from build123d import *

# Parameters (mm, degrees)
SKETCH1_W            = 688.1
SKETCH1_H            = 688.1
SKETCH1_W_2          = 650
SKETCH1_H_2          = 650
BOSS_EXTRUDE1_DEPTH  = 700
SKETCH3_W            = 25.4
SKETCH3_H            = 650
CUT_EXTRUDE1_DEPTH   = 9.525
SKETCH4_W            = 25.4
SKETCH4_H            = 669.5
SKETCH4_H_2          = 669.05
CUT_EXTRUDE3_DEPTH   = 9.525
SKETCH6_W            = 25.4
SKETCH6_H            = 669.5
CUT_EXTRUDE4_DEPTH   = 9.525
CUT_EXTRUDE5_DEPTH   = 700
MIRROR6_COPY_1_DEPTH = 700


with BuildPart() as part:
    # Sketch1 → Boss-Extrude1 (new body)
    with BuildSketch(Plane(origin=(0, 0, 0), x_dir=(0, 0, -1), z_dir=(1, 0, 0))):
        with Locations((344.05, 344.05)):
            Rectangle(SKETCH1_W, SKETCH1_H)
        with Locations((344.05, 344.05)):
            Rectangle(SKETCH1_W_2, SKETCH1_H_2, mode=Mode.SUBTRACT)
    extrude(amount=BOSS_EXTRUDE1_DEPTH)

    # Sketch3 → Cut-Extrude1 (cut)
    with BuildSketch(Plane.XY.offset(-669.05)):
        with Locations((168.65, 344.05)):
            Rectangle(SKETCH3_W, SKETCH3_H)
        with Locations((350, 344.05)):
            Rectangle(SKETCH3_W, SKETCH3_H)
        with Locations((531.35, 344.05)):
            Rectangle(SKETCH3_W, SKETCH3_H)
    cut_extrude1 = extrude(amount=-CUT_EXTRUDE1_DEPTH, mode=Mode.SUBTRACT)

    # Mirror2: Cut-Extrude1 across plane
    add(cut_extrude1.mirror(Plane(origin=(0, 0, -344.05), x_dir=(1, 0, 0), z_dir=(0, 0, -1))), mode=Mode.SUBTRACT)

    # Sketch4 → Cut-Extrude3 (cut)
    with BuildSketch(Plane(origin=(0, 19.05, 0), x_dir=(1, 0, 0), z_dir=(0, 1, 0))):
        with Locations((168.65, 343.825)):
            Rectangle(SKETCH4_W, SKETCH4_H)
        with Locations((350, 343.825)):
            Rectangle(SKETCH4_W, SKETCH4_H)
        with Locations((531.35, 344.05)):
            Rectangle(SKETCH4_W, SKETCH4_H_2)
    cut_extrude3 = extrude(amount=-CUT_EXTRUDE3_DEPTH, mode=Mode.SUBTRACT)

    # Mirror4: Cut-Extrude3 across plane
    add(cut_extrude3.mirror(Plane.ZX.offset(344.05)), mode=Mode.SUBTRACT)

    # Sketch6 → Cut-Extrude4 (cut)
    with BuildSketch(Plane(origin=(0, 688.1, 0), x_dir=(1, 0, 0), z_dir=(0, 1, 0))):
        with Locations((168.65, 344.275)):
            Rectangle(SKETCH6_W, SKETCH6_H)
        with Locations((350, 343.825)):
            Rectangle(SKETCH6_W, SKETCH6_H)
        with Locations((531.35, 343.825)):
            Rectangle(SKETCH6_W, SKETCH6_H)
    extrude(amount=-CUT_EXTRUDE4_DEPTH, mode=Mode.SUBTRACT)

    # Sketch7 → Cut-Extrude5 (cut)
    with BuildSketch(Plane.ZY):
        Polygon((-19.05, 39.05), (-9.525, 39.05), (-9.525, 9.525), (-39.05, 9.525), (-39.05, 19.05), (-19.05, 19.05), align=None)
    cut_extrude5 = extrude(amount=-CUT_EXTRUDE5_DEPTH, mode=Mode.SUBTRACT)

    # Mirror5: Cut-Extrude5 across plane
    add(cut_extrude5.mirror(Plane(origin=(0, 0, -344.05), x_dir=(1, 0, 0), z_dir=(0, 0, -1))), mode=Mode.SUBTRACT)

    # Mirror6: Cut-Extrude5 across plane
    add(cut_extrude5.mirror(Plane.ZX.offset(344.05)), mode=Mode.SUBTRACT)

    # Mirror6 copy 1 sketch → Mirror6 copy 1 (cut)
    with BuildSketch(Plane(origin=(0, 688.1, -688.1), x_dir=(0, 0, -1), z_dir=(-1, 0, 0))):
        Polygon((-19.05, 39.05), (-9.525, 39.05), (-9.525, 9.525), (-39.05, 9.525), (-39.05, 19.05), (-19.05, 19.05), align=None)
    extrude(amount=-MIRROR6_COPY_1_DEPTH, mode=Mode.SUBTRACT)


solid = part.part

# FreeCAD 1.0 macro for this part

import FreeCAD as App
import Part
import Sketcher

V = App.Vector

doc = App.newDocument("Part")
body = doc.addObject("PartDesign::Body", "Body")

sketch1 = body.newObject("Sketcher::SketchObject", "Sketch")
sketch1.AttachmentSupport = (doc.getObject("YZ_Plane"), [""])
sketch1.MapMode = "FlatFace"
sketch1.addGeometry([
    Part.LineSegment(V(688.1, 0, 0), V(0, 0, 0)),
    Part.LineSegment(V(0, 0, 0), V(0, -688.1, 0)),
    Part.LineSegment(V(0, -688.1, 0), V(688.1, -688.1, 0)),
    Part.LineSegment(V(688.1, -688.1, 0), V(688.1, 0, 0)),
    Part.LineSegment(V(19.05, -669.05, 0), V(19.05, -19.05, 0)),
    Part.LineSegment(V(19.05, -19.05, 0), V(669.05, -19.05, 0)),
    Part.LineSegment(V(669.05, -19.05, 0), V(669.05, -669.05, 0)),
    Part.LineSegment(V(669.05, -669.05, 0), V(19.05, -669.05, 0)),
], False)
sketch1.addConstraint([
    Sketcher.Constraint("Coincident", 0, 2, 1, 1),
    Sketcher.Constraint("Coincident", 1, 2, 2, 1),
    Sketcher.Constraint("Coincident", 2, 2, 3, 1),
    Sketcher.Constraint("Coincident", 3, 2, 0, 1),
    Sketcher.Constraint("Coincident", 4, 2, 5, 1),
    Sketcher.Constraint("Coincident", 5, 2, 6, 1),
    Sketcher.Constraint("Coincident", 6, 2, 7, 1),
    Sketcher.Constraint("Coincident", 7, 2, 4, 1),
    Sketcher.Constraint("Horizontal", 0),
    Sketcher.Constraint("Vertical", 1),
    Sketcher.Constraint("Horizontal", 2),
    Sketcher.Constraint("Vertical", 3),
    Sketcher.Constraint("Vertical", 4),
    Sketcher.Constraint("Horizontal", 5),
    Sketcher.Constraint("Vertical", 6),
    Sketcher.Constraint("Horizontal", 7),
    Sketcher.Constraint("Coincident", 0, 2, -1, 1),
    Sketcher.Constraint("Equal", 2, 1),
    Sketcher.Constraint("Equal", 7, 4),
    Sketcher.Constraint("DistanceX", 5, 1, 5, 2, 650.0),
    Sketcher.Constraint("DistanceX", 0, 2, 0, 1, 688.1),
    Sketcher.Constraint("DistanceX", -1, 1, 4, 2, 19.05),
    Sketcher.Constraint("DistanceY", 4, 2, -1, 1, 19.05),
])
pad1 = body.newObject("PartDesign::Pad", "Pad")
pad1.Profile = sketch1
pad1.Length = 700

sketch2 = body.newObject("Sketcher::SketchObject", "Sketch001")
sketch2.AttachmentSupport = (doc.getObject("XY_Plane"), [""])
sketch2.MapMode = "FlatFace"
sketch2.AttachmentOffset = App.Placement(V(0, 0, -669.05), App.Rotation())
sketch2.addGeometry([
    Part.LineSegment(V(155.95, 669.05, 0), V(155.95, 19.05, 0)),
    Part.LineSegment(V(155.95, 19.05, 0), V(181.35, 19.05, 0)),
    Part.LineSegment(V(181.35, 19.05, 0), V(181.35, 669.05, 0)),
    Part.LineSegment(V(181.35, 669.05, 0), V(155.95, 669.05, 0)),
    Part.LineSegment(V(337.3, 669.05, 0), V(337.3, 19.05, 0)),
    Part.LineSegment(V(337.3, 19.05, 0), V(362.7, 19.05, 0)),
    Part.LineSegment(V(362.7, 19.05, 0), V(362.7, 669.05, 0)),
    Part.LineSegment(V(362.7, 669.05, 0), V(337.3, 669.05, 0)),
    Part.LineSegment(V(518.65, 669.05, 0), V(518.65, 19.05, 0)),
    Part.LineSegment(V(518.65, 19.05, 0), V(544.05, 19.05, 0)),
    Part.LineSegment(V(544.05, 19.05, 0), V(544.05, 669.05, 0)),
    Part.LineSegment(V(544.05, 669.05, 0), V(518.65, 669.05, 0)),
], False)
sketch2.addConstraint([
    Sketcher.Constraint("Coincident", 0, 2, 1, 1),
    Sketcher.Constraint("Coincident", 1, 2, 2, 1),
    Sketcher.Constraint("Coincident", 2, 2, 3, 1),
    Sketcher.Constraint("Coincident", 3, 2, 0, 1),
    Sketcher.Constraint("Coincident", 4, 2, 5, 1),
    Sketcher.Constraint("Coincident", 5, 2, 6, 1),
    Sketcher.Constraint("Coincident", 6, 2, 7, 1),
    Sketcher.Constraint("Coincident", 7, 2, 4, 1),
    Sketcher.Constraint("Coincident", 8, 2, 9, 1),
    Sketcher.Constraint("Coincident", 9, 2, 10, 1),
    Sketcher.Constraint("Coincident", 10, 2, 11, 1),
    Sketcher.Constraint("Coincident", 11, 2, 8, 1),
    Sketcher.Constraint("Vertical", 0),
    Sketcher.Constraint("Horizontal", 1),
    Sketcher.Constraint("Vertical", 2),
    Sketcher.Constraint("Horizontal", 3),
    Sketcher.Constraint("Vertical", 4),
    Sketcher.Constraint("Horizontal", 5),
    Sketcher.Constraint("Vertical", 6),
    Sketcher.Constraint("Horizontal", 7),
    Sketcher.Constraint("Vertical", 8),
    Sketcher.Constraint("Horizontal", 9),
    Sketcher.Constraint("Vertical", 10),
    Sketcher.Constraint("Horizontal", 11),
    Sketcher.Constraint("Horizontal", 1, 2, 4, 2),
    Sketcher.Constraint("Horizontal", 3, 2, 6, 2),
    Sketcher.Constraint("Horizontal", 5, 2, 8, 2),
    Sketcher.Constraint("Horizontal", 7, 2, 10, 2),
    Sketcher.Constraint("Equal", 3, 5),
    Sketcher.Constraint("Equal", 7, 9),
    Sketcher.Constraint("DistanceY", 0, 2, 0, 1, 650.0),
    Sketcher.Constraint("DistanceX", 1, 1, 1, 2, 25.4),
    Sketcher.Constraint("DistanceX", -1, 1, 4, 2, 337.3),
    Sketcher.Constraint("DistanceX", 1, 2, 8, 2, 337.3),
    Sketcher.Constraint("DistanceX", -1, 1, 0, 2, 155.95),
    Sketcher.Constraint("DistanceY", -1, 1, 0, 2, 19.05),
])
pocket1 = body.newObject("PartDesign::Pocket", "Pocket")
pocket1.Profile = sketch2
pocket1.Length = 9.525
doc.recompute()

datumplane = body.newObject("PartDesign::Plane", "DatumPlane")
datumplane.AttachmentSupport = (doc.getObject("XY_Plane"), [""])
datumplane.MapMode = "FlatFace"
datumplane.AttachmentOffset = App.Placement(V(0, 0, -344.05), App.Rotation())
mirrored = body.newObject("PartDesign::Mirrored", "Mirrored")
mirrored.Originals = [pocket1]
mirrored.MirrorPlane = (datumplane, [""])
body.Tip = mirrored

sketch3 = body.newObject("Sketcher::SketchObject", "Sketch002")
sketch3.AttachmentSupport = (doc.getObject("XZ_Plane"), [""])
sketch3.MapMode = "FlatFace"
sketch3.AttachmentOffset = App.Placement(V(0, 0, -19.05), App.Rotation())
sketch3.addGeometry([
    Part.LineSegment(V(155.95, -678.575, 0), V(155.95, -9.075, 0)),
    Part.LineSegment(V(155.95, -9.075, 0), V(181.35, -9.075, 0)),
    Part.LineSegment(V(181.35, -9.075, 0), V(181.35, -678.575, 0)),
    Part.LineSegment(V(181.35, -678.575, 0), V(155.95, -678.575, 0)),
    Part.LineSegment(V(337.3, -678.575, 0), V(337.3, -9.075, 0)),
    Part.LineSegment(V(337.3, -9.075, 0), V(362.7, -9.075, 0)),
    Part.LineSegment(V(362.7, -9.075, 0), V(362.7, -678.575, 0)),
    Part.LineSegment(V(362.7, -678.575, 0), V(337.3, -678.575, 0)),
    Part.LineSegment(V(518.65, -678.575, 0), V(518.65, -9.525, 0)),
    Part.LineSegment(V(518.65, -9.525, 0), V(544.05, -9.525, 0)),
    Part.LineSegment(V(544.05, -9.525, 0), V(544.05, -678.575, 0)),
    Part.LineSegment(V(544.05, -678.575, 0), V(518.65, -678.575, 0)),
], False)
sketch3.addConstraint([
    Sketcher.Constraint("Coincident", 0, 2, 1, 1),
    Sketcher.Constraint("Coincident", 1, 2, 2, 1),
    Sketcher.Constraint("Coincident", 2, 2, 3, 1),
    Sketcher.Constraint("Coincident", 3, 2, 0, 1),
    Sketcher.Constraint("Coincident", 4, 2, 5, 1),
    Sketcher.Constraint("Coincident", 5, 2, 6, 1),
    Sketcher.Constraint("Coincident", 6, 2, 7, 1),
    Sketcher.Constraint("Coincident", 7, 2, 4, 1),
    Sketcher.Constraint("Coincident", 8, 2, 9, 1),
    Sketcher.Constraint("Coincident", 9, 2, 10, 1),
    Sketcher.Constraint("Coincident", 10, 2, 11, 1),
    Sketcher.Constraint("Coincident", 11, 2, 8, 1),
    Sketcher.Constraint("Vertical", 0),
    Sketcher.Constraint("Horizontal", 1),
    Sketcher.Constraint("Vertical", 2),
    Sketcher.Constraint("Horizontal", 3),
    Sketcher.Constraint("Vertical", 4),
    Sketcher.Constraint("Horizontal", 5),
    Sketcher.Constraint("Vertical", 6),
    Sketcher.Constraint("Horizontal", 7),
    Sketcher.Constraint("Vertical", 8),
    Sketcher.Constraint("Horizontal", 9),
    Sketcher.Constraint("Vertical", 10),
    Sketcher.Constraint("Horizontal", 11),
    Sketcher.Constraint("Horizontal", 1, 2, 4, 2),
    Sketcher.Constraint("Horizontal", 3, 2, 6, 2),
    Sketcher.Constraint("Horizontal", 7, 2, 10, 2),
    Sketcher.Constraint("Equal", 3, 5),
    Sketcher.Constraint("Equal", 7, 9),
    Sketcher.Constraint("DistanceX", 1, 1, 1, 2, 25.4),
    Sketcher.Constraint("DistanceY", 0, 1, 0, 2, 669.5),
    Sketcher.Constraint("DistanceY", 8, 1, 8, 2, 669.05),
    Sketcher.Constraint("DistanceX", -1, 1, 4, 2, 337.3),
    Sketcher.Constraint("DistanceX", 1, 2, 8, 2, 337.3),
    Sketcher.Constraint("DistanceX", -1, 1, 0, 2, 155.95),
    Sketcher.Constraint("DistanceY", 0, 2, -1, 1, 9.075),
])
pocket2 = body.newObject("PartDesign::Pocket", "Pocket001")
pocket2.Profile = sketch3
pocket2.Length = 9.525
pocket2.Reversed = True
doc.recompute()

datumplane2 = body.newObject("PartDesign::Plane", "DatumPlane001")
datumplane2.AttachmentSupport = (doc.getObject("XZ_Plane"), [""])
datumplane2.MapMode = "FlatFace"
datumplane2.AttachmentOffset = App.Placement(V(0, 0, -344.05), App.Rotation())
mirrored2 = body.newObject("PartDesign::Mirrored", "Mirrored001")
mirrored2.Originals = [pocket2]
mirrored2.MirrorPlane = (datumplane2, [""])
body.Tip = mirrored2

sketch4 = body.newObject("Sketcher::SketchObject", "Sketch003")
sketch4.AttachmentSupport = (doc.getObject("XZ_Plane"), [""])
sketch4.MapMode = "FlatFace"
sketch4.AttachmentOffset = App.Placement(V(0, 0, -688.1), App.Rotation())
sketch4.addGeometry([
    Part.LineSegment(V(155.95, -679.025, 0), V(155.95, -9.525, 0)),
    Part.LineSegment(V(155.95, -9.525, 0), V(181.35, -9.525, 0)),
    Part.LineSegment(V(181.35, -9.525, 0), V(181.35, -679.025, 0)),
    Part.LineSegment(V(181.35, -679.025, 0), V(155.95, -679.025, 0)),
    Part.LineSegment(V(337.3, -678.575, 0), V(337.3, -9.075, 0)),
    Part.LineSegment(V(337.3, -9.075, 0), V(362.7, -9.075, 0)),
    Part.LineSegment(V(362.7, -9.075, 0), V(362.7, -678.575, 0)),
    Part.LineSegment(V(362.7, -678.575, 0), V(337.3, -678.575, 0)),
    Part.LineSegment(V(518.65, -678.575, 0), V(518.65, -9.075, 0)),
    Part.LineSegment(V(518.65, -9.075, 0), V(544.05, -9.075, 0)),
    Part.LineSegment(V(544.05, -9.075, 0), V(544.05, -678.575, 0)),
    Part.LineSegment(V(544.05, -678.575, 0), V(518.65, -678.575, 0)),
], False)
sketch4.addConstraint([
    Sketcher.Constraint("Coincident", 0, 2, 1, 1),
    Sketcher.Constraint("Coincident", 1, 2, 2, 1),
    Sketcher.Constraint("Coincident", 2, 2, 3, 1),
    Sketcher.Constraint("Coincident", 3, 2, 0, 1),
    Sketcher.Constraint("Coincident", 4, 2, 5, 1),
    Sketcher.Constraint("Coincident", 5, 2, 6, 1),
    Sketcher.Constraint("Coincident", 6, 2, 7, 1),
    Sketcher.Constraint("Coincident", 7, 2, 4, 1),
    Sketcher.Constraint("Coincident", 8, 2, 9, 1),
    Sketcher.Constraint("Coincident", 9, 2, 10, 1),
    Sketcher.Constraint("Coincident", 10, 2, 11, 1),
    Sketcher.Constraint("Coincident", 11, 2, 8, 1),
    Sketcher.Constraint("Vertical", 0),
    Sketcher.Constraint("Horizontal", 1),
    Sketcher.Constraint("Vertical", 2),
    Sketcher.Constraint("Horizontal", 3),
    Sketcher.Constraint("Vertical", 4),
    Sketcher.Constraint("Horizontal", 5),
    Sketcher.Constraint("Vertical", 6),
    Sketcher.Constraint("Horizontal", 7),
    Sketcher.Constraint("Vertical", 8),
    Sketcher.Constraint("Horizontal", 9),
    Sketcher.Constraint("Vertical", 10),
    Sketcher.Constraint("Horizontal", 11),
    Sketcher.Constraint("Horizontal", 5, 2, 8, 2),
    Sketcher.Constraint("Horizontal", 7, 2, 10, 2),
    Sketcher.Constraint("Equal", 3, 5),
    Sketcher.Constraint("Equal", 7, 9),
    Sketcher.Constraint("Equal", 2, 4),
    Sketcher.Constraint("DistanceX", 1, 1, 1, 2, 25.4),
    Sketcher.Constraint("DistanceY", 0, 1, 0, 2, 669.5),
    Sketcher.Constraint("DistanceX", -1, 1, 4, 2, 337.3),
    Sketcher.Constraint("DistanceX", 1, 2, 8, 2, 337.3),
    Sketcher.Constraint("DistanceX", -1, 1, 0, 2, 155.95),
    Sketcher.Constraint("DistanceY", 1, 2, 4, 2, 0.45),
    Sketcher.Constraint("DistanceY", 0, 2, -1, 1, 9.525),
])
pocket3 = body.newObject("PartDesign::Pocket", "Pocket002")
pocket3.Profile = sketch4
pocket3.Length = 9.525
pocket3.Reversed = True

sketch5 = body.newObject("Sketcher::SketchObject", "Sketch004")
sketch5.AttachmentSupport = (doc.getObject("YZ_Plane"), [""])
sketch5.MapMode = "FlatFace"
sketch5.addGeometry([
    Part.LineSegment(V(39.05, -9.525, 0), V(39.05, -19.05, 0)),
    Part.LineSegment(V(39.05, -19.05, 0), V(19.05, -19.05, 0)),
    Part.LineSegment(V(19.05, -19.05, 0), V(19.05, -39.05, 0)),
    Part.LineSegment(V(19.05, -39.05, 0), V(9.525, -39.05, 0)),
    Part.LineSegment(V(9.525, -39.05, 0), V(9.525, -9.525, 0)),
    Part.LineSegment(V(9.525, -9.525, 0), V(39.05, -9.525, 0)),
], False)
sketch5.addConstraint([
    Sketcher.Constraint("Coincident", 0, 2, 1, 1),
    Sketcher.Constraint("Coincident", 1, 2, 2, 1),
    Sketcher.Constraint("Coincident", 2, 2, 3, 1),
    Sketcher.Constraint("Coincident", 3, 2, 4, 1),
    Sketcher.Constraint("Coincident", 4, 2, 5, 1),
    Sketcher.Constraint("Coincident", 5, 2, 0, 1),
    Sketcher.Constraint("Vertical", 0),
    Sketcher.Constraint("Horizontal", 1),
    Sketcher.Constraint("Vertical", 2),
    Sketcher.Constraint("Horizontal", 3),
    Sketcher.Constraint("Vertical", 4),
    Sketcher.Constraint("Horizontal", 5),
    Sketcher.Constraint("Equal", 3, 0),
    Sketcher.Constraint("Equal", 1, 2),
    Sketcher.Constraint("DistanceX", 1, 2, 1, 1, 20.0),
    Sketcher.Constraint("DistanceX", 3, 2, 3, 1, 9.525),
    Sketcher.Constraint("DistanceX", -1, 1, 0, 2, 39.05),
    Sketcher.Constraint("DistanceY", 0, 2, -1, 1, 19.05),
])
pocket4 = body.newObject("PartDesign::Pocket", "Pocket003")
pocket4.Profile = sketch5
pocket4.Length = 700
pocket4.Reversed = True
doc.recompute()

datumplane3 = body.newObject("PartDesign::Plane", "DatumPlane002")
datumplane3.AttachmentSupport = (doc.getObject("XY_Plane"), [""])
datumplane3.MapMode = "FlatFace"
datumplane3.AttachmentOffset = App.Placement(V(0, 0, -344.05), App.Rotation())
mirrored3 = body.newObject("PartDesign::Mirrored", "Mirrored002")
mirrored3.Originals = [pocket4]
mirrored3.MirrorPlane = (datumplane3, [""])
body.Tip = mirrored3
doc.recompute()

datumplane4 = body.newObject("PartDesign::Plane", "DatumPlane003")
datumplane4.AttachmentSupport = (doc.getObject("XZ_Plane"), [""])
datumplane4.MapMode = "FlatFace"
datumplane4.AttachmentOffset = App.Placement(V(0, 0, -344.05), App.Rotation())
mirrored4 = body.newObject("PartDesign::Mirrored", "Mirrored003")
mirrored4.Originals = [pocket4]
mirrored4.MirrorPlane = (datumplane4, [""])
body.Tip = mirrored4

sketch6 = body.newObject("Sketcher::SketchObject", "Sketch005")
sketch6.AttachmentSupport = (doc.getObject("YZ_Plane"), [""])
sketch6.MapMode = "FlatFace"
sketch6.addGeometry([
    Part.LineSegment(V(649.05, -678.575, 0), V(649.05, -669.05, 0)),
    Part.LineSegment(V(649.05, -669.05, 0), V(669.05, -669.05, 0)),
    Part.LineSegment(V(669.05, -669.05, 0), V(669.05, -649.05, 0)),
    Part.LineSegment(V(669.05, -649.05, 0), V(678.575, -649.05, 0)),
    Part.LineSegment(V(678.575, -649.05, 0), V(678.575, -678.575, 0)),
    Part.LineSegment(V(678.575, -678.575, 0), V(649.05, -678.575, 0)),
], False)
sketch6.addConstraint([
    Sketcher.Constraint("Coincident", 0, 2, 1, 1),
    Sketcher.Constraint("Coincident", 1, 2, 2, 1),
    Sketcher.Constraint("Coincident", 2, 2, 3, 1),
    Sketcher.Constraint("Coincident", 3, 2, 4, 1),
    Sketcher.Constraint("Coincident", 4, 2, 5, 1),
    Sketcher.Constraint("Coincident", 5, 2, 0, 1),
    Sketcher.Constraint("Vertical", 0),
    Sketcher.Constraint("Horizontal", 1),
    Sketcher.Constraint("Vertical", 2),
    Sketcher.Constraint("Horizontal", 3),
    Sketcher.Constraint("Vertical", 4),
    Sketcher.Constraint("Horizontal", 5),
    Sketcher.Constraint("Equal", 3, 0),
    Sketcher.Constraint("Equal", 1, 2),
    Sketcher.Constraint("DistanceX", 1, 1, 1, 2, 20.0),
    Sketcher.Constraint("DistanceX", 3, 1, 3, 2, 9.525),
    Sketcher.Constraint("DistanceX", -1, 1, 0, 2, 649.05),
    Sketcher.Constraint("DistanceY", 0, 2, -1, 1, 669.05),
])
pocket5 = body.newObject("PartDesign::Pocket", "Pocket004")
pocket5.Profile = sketch6
pocket5.Length = 700
pocket5.Reversed = True

doc.recompute()
